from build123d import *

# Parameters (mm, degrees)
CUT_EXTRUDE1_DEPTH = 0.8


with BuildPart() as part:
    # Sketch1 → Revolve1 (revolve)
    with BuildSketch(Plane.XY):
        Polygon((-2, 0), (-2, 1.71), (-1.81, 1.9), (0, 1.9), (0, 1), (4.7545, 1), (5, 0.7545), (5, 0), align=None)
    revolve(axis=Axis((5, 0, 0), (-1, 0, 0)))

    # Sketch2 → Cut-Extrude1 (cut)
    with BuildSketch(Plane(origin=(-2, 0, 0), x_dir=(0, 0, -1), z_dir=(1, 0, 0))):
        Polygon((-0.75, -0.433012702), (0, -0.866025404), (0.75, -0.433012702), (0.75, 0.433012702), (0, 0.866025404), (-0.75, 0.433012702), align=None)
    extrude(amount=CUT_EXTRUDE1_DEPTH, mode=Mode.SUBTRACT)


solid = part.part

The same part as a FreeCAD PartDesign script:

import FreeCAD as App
import Part
import Sketcher
from FreeCAD import Vector
Q = App.Units.Quantity


def add_polygon(sketch, points):
    """Adds a closed chain of lines whose ends are joined by coincident constraints."""
    first, n = sketch.GeometryCount, len(points)
    for a, b in zip(points, points[1:] + points[:1]):
        sketch.addGeometry(Part.LineSegment(App.Vector(*a, 0), App.Vector(*b, 0)), False)
    for i in range(n):
        sketch.addConstraint(Sketcher.Constraint("Coincident", first + i, 2, first + (i + 1) % n, 1))

doc = App.newDocument("Part")
body = doc.addObject("PartDesign::Body", "Body")

# Sketch on XY plane
sketch1 = body.newObject("Sketcher::SketchObject", "Sketch")
sketch1.AttachmentSupport = (doc.getObject("XY_Plane"), [""])
sketch1.MapMode = "FlatFace"
add_polygon(sketch1, [(-2, 1.71), (-2, 0), (5, 0), (5, 0.75), (4.75, 1), (0, 1), (0, 1.9), (-1.81, 1.9)])  # lines 0-7
sketch1.addConstraint([
    Sketcher.Constraint("Vertical", 0),
    Sketcher.Constraint("Horizontal", 1),
    Sketcher.Constraint("Vertical", 2),
    Sketcher.Constraint("Horizontal", 4),
    Sketcher.Constraint("Vertical", 5),
    Sketcher.Constraint("Horizontal", 6),
    Sketcher.Constraint("PointOnObject", 0, 2, -1),
    Sketcher.Constraint("PointOnObject", 4, 2, -2),
    Sketcher.Constraint("Perpendicular", 3, 7),
    Sketcher.Constraint("DistanceX", 1, 1, 1, 2, 7.0),
    Sketcher.Constraint("Angle", 3, Q("135 deg")),
    Sketcher.Constraint("DistanceY", 5, 1, 5, 2, 0.9),
    Sketcher.Constraint("DistanceX", 0, 2, -1, 1, 2.0),
    Sketcher.Constraint("DistanceY", -1, 1, 3, 2, 1.0),
    Sketcher.Constraint("DistanceX", 6, 2, 6, 1, 1.81),
    Sketcher.Constraint("DistanceX", 4, 2, 4, 1, 4.7545),
])
revolution = body.newObject("PartDesign::Revolution", "Revolution")
revolution.Profile = sketch1
revolution.ReferenceAxis = (sketch1, ["H_Axis"])
revolution.Angle = 360

# Sketch on YZ plane
sketch2 = body.newObject("Sketcher::SketchObject", "Sketch001")
sketch2.AttachmentSupport = (doc.getObject("YZ_Plane"), [""])
sketch2.MapMode = "FlatFace"
sketch2.AttachmentOffset = App.Placement(Vector(0, 0, -2), App.Rotation())
add_polygon(sketch2, [(-0.4, 0.8), (-0.9, 0), (-0.4, -0.8), (0.4, -0.8), (0.9, 0), (0.4, 0.8)])  # lines 0-5
sketch2.addConstraint([
    Sketcher.Constraint("Horizontal", 2),
    Sketcher.Constraint("Horizontal", 5),
    Sketcher.Constraint("Symmetric", 0, 2, 3, 2, -1, 1),
    Sketcher.Constraint("Symmetric", 1, 2, 4, 2, -1, 1),
    Sketcher.Constraint("PointOnObject", 0, 2, -1),
    Sketcher.Constraint("Parallel", 0, 3),
    Sketcher.Constraint("Vertical", 2, 2, 4, 2),
    Sketcher.Constraint("Angle", 0, Q("-120 deg")),
    Sketcher.Constraint("DistanceY", 2, 2, 4, 2, 1.5),
    Sketcher.Constraint("DistanceX", 2, 1, 2, 2, 0.866025),
])
pocket1 = body.newObject("PartDesign::Pocket", "Pocket")
pocket1.Profile = sketch2
pocket1.Length = 0.8
pocket1.Reversed = True

doc.recompute()
